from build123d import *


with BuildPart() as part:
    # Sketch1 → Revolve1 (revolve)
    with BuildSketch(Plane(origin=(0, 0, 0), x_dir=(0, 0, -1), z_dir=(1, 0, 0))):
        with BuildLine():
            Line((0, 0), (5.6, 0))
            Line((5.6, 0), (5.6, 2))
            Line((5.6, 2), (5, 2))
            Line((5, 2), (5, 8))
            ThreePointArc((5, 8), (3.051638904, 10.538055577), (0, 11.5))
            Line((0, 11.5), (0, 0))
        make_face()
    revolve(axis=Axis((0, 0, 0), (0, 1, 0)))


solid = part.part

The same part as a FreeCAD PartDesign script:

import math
import FreeCAD as App
import Part
import Sketcher
Q = App.Units.Quantity

doc = App.newDocument("Part")
body = doc.addObject("PartDesign::Body", "Body")

sketch1 = doc.addObject("Sketcher::SketchObject", "Sketch")
body.addObject(sketch1)
sketch1.AttachmentSupport = (doc.YZ_Plane, [""])
sketch1.MapMode = "FlatFace"
sketch1.addGeometry(Part.LineSegment(App.Vector(0, 0, 0), App.Vector(0, -5.6, 0)), False)
sketch1.addGeometry(Part.LineSegment(App.Vector(0, -5.6, 0), App.Vector(2, -5.6, 0)), False)
sketch1.addGeometry(Part.LineSegment(App.Vector(2, -5.6, 0), App.Vector(2, -5, 0)), False)
sketch1.addGeometry(Part.LineSegment(App.Vector(2, -5, 0), App.Vector(8, -5, 0)), False)
sketch1.addGeometry(Part.ArcOfCircle(Part.Circle(App.Vector(6.2, 0, 0), App.Vector(0, 0, 1), 5.3), math.radians(-70), math.radians(0)), False)
sketch1.addGeometry(Part.LineSegment(App.Vector(11.5, 0, 0), App.Vector(0, 0, 0)), False)
sketch1.addConstraint(Sketcher.Constraint("Coincident", 0, 2, 1, 1))
sketch1.addConstraint(Sketcher.Constraint("Coincident", 1, 2, 2, 1))
sketch1.addConstraint(Sketcher.Constraint("Coincident", 2, 2, 3, 1))
sketch1.addConstraint(Sketcher.Constraint("Coincident", 3, 2, 4, 1))
sketch1.addConstraint(Sketcher.Constraint("Coincident", 4, 2, 5, 1))
sketch1.addConstraint(Sketcher.Constraint("Coincident", 5, 2, 0, 1))
sketch1.addConstraint(Sketcher.Constraint("Vertical", 0))
sketch1.addConstraint(Sketcher.Constraint("Horizontal", 1))
sketch1.addConstraint(Sketcher.Constraint("Vertical", 2))
sketch1.addConstraint(Sketcher.Constraint("Horizontal", 3))
sketch1.addConstraint(Sketcher.Constraint("Horizontal", 5))
sketch1.addConstraint(Sketcher.Constraint("Coincident", 5, 2, -1, 1))
sketch1.addConstraint(Sketcher.Constraint("PointOnObject", 4, 3, -1))
sketch1.addConstraint(Sketcher.Constraint("DistanceX", 1, 1, 1, 2, Q("2 mm")))
sketch1.addConstraint(Sketcher.Constraint("DistanceX", 3, 1, 3, 2, Q("6 mm")))
sketch1.addConstraint(Sketcher.Constraint("DistanceX", 5, 2, 5, 1, Q("11.5 mm")))
sketch1.addConstraint(Sketcher.Constraint("DistanceY", 0, 2, 0, 1, Q("5.6 mm")))
sketch1.addConstraint(Sketcher.Constraint("DistanceY", 2, 1, 2, 2, Q("0.6 mm")))
revolution = doc.addObject("PartDesign::Revolution", "Revolution")
body.addObject(revolution)
revolution.Profile = sketch1
revolution.ReferenceAxis = (sketch1, ["H_Axis"])
revolution.Angle = 360

doc.recompute()
